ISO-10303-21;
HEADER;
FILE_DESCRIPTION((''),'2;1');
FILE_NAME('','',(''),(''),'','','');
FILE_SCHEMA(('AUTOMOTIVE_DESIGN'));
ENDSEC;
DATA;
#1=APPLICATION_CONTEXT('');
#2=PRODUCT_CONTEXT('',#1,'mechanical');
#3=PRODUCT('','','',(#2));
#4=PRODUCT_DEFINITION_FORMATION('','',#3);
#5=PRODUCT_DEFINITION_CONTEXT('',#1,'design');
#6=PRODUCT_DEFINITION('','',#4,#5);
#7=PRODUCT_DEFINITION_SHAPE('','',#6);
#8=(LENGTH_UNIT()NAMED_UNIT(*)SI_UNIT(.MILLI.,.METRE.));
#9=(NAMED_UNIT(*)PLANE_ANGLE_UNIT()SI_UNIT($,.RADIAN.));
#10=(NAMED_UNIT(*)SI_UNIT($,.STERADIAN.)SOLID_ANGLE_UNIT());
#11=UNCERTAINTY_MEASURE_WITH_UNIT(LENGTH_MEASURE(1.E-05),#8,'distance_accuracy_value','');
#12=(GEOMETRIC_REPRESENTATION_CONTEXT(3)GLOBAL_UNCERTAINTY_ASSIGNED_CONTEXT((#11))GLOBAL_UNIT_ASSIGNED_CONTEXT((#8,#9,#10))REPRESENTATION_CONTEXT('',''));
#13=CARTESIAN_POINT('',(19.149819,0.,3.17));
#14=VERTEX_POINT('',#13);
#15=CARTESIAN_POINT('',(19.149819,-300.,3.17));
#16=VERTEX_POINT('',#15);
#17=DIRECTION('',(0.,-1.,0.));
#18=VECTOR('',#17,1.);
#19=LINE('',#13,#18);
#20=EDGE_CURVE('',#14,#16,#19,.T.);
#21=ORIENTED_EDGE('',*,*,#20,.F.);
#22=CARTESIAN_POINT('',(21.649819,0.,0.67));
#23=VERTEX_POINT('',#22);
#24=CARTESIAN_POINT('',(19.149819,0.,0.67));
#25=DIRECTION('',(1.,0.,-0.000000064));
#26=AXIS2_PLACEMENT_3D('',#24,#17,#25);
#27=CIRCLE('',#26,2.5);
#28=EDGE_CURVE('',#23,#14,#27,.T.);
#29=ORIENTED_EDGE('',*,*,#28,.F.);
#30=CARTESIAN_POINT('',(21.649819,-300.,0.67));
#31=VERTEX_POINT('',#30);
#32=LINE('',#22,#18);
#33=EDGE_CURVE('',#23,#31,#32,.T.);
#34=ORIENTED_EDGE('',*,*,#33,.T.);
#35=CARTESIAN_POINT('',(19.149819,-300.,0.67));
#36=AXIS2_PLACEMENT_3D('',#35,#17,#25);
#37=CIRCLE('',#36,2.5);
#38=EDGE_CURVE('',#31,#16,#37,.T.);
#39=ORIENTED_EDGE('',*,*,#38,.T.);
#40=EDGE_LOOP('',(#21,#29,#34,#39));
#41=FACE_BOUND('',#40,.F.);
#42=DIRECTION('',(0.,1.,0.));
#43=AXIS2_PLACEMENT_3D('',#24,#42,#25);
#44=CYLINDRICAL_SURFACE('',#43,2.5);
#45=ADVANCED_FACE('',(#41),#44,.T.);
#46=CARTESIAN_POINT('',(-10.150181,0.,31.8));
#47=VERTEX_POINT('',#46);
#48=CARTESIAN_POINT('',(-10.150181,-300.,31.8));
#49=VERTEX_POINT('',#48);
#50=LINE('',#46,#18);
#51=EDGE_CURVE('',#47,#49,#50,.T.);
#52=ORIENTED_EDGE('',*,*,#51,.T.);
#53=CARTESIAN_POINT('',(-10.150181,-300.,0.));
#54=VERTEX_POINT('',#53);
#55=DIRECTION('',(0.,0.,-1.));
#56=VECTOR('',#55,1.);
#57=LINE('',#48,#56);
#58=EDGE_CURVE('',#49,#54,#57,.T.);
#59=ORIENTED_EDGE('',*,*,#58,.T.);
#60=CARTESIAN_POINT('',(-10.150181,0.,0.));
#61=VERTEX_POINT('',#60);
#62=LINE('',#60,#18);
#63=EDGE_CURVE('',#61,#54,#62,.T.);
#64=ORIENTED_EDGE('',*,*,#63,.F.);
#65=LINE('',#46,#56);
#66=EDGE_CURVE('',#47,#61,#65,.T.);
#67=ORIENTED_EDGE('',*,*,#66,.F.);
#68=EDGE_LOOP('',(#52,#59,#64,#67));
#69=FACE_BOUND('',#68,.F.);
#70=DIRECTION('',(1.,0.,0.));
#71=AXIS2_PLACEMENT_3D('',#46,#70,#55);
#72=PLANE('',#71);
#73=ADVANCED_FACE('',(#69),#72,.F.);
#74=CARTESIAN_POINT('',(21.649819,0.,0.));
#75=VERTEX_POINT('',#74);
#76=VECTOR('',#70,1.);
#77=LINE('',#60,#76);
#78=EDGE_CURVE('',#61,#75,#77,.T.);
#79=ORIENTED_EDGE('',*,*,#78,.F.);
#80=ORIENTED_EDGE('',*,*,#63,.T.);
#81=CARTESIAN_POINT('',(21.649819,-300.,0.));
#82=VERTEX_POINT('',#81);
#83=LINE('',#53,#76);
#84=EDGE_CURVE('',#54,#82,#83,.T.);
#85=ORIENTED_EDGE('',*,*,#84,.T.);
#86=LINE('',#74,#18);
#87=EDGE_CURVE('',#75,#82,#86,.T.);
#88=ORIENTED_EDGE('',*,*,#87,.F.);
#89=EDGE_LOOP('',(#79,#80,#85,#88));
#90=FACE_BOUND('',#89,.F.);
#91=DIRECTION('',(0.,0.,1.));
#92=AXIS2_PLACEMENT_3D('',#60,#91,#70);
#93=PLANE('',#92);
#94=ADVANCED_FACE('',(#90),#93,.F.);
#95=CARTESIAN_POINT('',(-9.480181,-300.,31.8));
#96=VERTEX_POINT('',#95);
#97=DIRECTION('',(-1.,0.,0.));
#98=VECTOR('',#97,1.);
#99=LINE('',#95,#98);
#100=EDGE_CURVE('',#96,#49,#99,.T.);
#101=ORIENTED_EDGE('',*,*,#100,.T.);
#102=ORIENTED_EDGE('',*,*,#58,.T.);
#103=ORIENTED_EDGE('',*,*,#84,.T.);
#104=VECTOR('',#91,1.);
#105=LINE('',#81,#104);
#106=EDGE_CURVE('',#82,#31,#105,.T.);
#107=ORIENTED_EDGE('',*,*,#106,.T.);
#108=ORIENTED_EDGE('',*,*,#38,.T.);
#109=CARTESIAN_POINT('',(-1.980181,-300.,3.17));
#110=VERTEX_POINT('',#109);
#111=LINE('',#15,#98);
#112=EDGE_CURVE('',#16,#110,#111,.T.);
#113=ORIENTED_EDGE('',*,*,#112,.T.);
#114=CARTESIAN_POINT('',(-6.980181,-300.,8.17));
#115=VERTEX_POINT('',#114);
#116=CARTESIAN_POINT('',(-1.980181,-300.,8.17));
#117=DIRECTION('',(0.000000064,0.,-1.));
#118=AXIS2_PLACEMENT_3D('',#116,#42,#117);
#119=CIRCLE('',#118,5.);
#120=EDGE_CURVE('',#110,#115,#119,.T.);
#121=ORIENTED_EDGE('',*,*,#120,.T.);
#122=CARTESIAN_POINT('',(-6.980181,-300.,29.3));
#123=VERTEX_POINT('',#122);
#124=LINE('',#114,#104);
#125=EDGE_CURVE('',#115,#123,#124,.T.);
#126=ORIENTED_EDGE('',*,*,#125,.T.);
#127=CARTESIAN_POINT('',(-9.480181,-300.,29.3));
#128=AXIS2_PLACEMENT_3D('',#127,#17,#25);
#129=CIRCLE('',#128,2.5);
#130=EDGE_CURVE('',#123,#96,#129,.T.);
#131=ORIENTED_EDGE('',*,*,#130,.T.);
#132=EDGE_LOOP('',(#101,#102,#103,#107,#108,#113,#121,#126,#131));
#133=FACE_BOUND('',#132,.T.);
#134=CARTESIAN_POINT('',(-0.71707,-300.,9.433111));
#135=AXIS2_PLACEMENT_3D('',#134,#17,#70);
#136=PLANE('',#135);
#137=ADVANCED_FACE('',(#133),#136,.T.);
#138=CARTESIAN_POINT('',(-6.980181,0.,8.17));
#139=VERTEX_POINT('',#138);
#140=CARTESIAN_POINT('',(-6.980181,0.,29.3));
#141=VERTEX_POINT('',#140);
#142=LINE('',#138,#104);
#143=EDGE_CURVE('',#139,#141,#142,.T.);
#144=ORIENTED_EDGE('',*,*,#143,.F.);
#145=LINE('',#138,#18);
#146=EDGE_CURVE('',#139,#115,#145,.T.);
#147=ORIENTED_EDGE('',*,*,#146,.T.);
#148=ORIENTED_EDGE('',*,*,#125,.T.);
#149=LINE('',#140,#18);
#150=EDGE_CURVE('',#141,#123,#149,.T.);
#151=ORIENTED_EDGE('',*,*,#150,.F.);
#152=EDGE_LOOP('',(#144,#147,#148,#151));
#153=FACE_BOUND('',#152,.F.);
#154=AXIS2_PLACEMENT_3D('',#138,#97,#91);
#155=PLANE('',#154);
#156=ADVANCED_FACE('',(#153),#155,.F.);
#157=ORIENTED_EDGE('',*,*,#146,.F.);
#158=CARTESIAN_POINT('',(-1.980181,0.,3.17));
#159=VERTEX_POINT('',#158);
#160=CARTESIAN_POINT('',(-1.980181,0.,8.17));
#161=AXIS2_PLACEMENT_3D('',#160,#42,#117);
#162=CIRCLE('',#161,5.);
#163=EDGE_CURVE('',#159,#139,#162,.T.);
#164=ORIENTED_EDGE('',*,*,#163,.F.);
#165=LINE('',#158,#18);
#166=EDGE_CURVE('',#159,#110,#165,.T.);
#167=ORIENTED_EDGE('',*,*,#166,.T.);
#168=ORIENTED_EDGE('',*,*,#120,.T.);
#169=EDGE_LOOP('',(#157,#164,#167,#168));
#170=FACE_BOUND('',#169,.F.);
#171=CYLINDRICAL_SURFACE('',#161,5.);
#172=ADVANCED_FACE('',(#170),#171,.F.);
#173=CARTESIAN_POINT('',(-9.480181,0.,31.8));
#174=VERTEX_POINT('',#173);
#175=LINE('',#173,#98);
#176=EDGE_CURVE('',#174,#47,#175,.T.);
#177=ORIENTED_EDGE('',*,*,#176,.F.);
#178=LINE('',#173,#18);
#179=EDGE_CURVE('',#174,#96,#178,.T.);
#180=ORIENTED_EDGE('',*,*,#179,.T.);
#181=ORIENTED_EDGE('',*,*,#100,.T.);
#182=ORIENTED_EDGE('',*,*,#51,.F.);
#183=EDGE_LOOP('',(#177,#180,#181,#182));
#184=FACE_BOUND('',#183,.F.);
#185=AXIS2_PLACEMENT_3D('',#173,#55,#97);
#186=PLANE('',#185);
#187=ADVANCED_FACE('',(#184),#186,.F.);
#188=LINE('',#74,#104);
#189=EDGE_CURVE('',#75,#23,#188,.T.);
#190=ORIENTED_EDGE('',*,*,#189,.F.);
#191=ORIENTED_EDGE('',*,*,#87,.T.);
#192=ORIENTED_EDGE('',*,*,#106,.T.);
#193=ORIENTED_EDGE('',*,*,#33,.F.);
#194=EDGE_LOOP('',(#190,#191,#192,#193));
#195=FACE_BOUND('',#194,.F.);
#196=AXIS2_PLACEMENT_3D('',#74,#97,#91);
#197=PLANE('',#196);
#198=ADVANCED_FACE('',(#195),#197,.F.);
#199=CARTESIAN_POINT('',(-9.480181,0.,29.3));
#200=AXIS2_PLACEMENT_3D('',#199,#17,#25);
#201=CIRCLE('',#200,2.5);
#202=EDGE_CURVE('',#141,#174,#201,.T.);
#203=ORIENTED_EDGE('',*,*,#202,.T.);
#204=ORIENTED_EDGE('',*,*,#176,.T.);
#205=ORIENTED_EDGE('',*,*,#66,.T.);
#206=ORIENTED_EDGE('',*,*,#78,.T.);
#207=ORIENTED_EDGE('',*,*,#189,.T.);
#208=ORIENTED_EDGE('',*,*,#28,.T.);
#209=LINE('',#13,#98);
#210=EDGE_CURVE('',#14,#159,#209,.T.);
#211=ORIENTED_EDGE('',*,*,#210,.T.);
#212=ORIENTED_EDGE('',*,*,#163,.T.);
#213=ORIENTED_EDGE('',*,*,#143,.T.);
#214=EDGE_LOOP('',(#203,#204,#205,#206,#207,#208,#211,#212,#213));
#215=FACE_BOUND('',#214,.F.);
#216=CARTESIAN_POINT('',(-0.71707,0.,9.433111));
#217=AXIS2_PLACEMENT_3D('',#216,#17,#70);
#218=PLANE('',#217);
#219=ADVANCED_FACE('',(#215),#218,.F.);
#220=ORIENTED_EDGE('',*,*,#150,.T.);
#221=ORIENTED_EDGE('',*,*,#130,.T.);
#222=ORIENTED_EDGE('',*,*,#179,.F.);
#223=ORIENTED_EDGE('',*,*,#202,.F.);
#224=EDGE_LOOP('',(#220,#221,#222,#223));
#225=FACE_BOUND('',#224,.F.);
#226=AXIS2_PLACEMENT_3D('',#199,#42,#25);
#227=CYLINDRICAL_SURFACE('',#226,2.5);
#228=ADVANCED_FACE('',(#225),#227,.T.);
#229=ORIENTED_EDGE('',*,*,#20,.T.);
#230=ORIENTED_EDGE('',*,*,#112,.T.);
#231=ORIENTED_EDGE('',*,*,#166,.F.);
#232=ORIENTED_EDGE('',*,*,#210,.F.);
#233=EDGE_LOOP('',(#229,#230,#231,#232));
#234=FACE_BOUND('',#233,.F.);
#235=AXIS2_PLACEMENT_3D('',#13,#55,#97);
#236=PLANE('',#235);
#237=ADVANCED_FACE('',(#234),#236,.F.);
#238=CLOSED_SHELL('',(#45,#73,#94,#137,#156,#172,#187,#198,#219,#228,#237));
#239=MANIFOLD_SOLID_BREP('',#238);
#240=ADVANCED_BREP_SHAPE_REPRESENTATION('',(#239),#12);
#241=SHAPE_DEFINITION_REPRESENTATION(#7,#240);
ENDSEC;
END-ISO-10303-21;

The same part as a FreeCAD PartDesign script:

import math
import FreeCAD as App
import Part
import Sketcher

doc = App.newDocument("Part")
params = doc.addObject("Spreadsheet::Sheet", "Params")
for row, (alias, value) in enumerate([
    ("sketch1_radius", "5 mm"),
    ("sketch1_radius2", "2.5 mm"),
    ("sketch1_width", "31.8 mm"),
    ("sketch1_width2", "0.67 mm"),
    ("pad1_length", "300 mm"),
], start=1):
    params.set(f"A{row}", alias)
    params.set(f"B{row}", "=" + value)
    params.setAlias(f"B{row}", alias)

body = doc.addObject("PartDesign::Body", "Body")

# Sketch on XZ plane
sketch1 = body.newObject("Sketcher::SketchObject", "Sketch")
sketch1.AttachmentSupport = (doc.getObject("XZ_Plane"), [""])
sketch1.MapMode = "FlatFace"
sketch1.addGeometry([
    Part.LineSegment(App.Vector(-9.5, 31.8, 0), App.Vector(-10.2, 31.8, 0)),  # 0
    Part.LineSegment(App.Vector(-10.2, 31.8, 0), App.Vector(-10.2, 0, 0)),  # 1
    Part.LineSegment(App.Vector(-10.2, 0, 0), App.Vector(21.6, 0, 0)),  # 2
    Part.LineSegment(App.Vector(21.6, 0, 0), App.Vector(21.6, 0.7, 0)),  # 3
    Part.ArcOfCircle(Part.Circle(App.Vector(19.1, 0.7, 0), App.Vector(0, 0, 1), 2.5), math.radians(0), math.radians(90)),  # 4
    Part.LineSegment(App.Vector(19.1, 3.2, 0), App.Vector(-2, 3.2, 0)),  # 5
    Part.ArcOfCircle(Part.Circle(App.Vector(-2, 8.2, 0), App.Vector(0, 0, 1), 5), math.radians(180), math.radians(270)),  # 6
    Part.LineSegment(App.Vector(-7, 8.2, 0), App.Vector(-7, 29.3, 0)),  # 7
    Part.ArcOfCircle(Part.Circle(App.Vector(-9.5, 29.3, 0), App.Vector(0, 0, 1), 2.5), math.radians(0), math.radians(90)),  # 8
], False)
sketch1.addConstraint([
    Sketcher.Constraint("Coincident", 0, 2, 1, 1),
    Sketcher.Constraint("Coincident", 1, 2, 2, 1),
    Sketcher.Constraint("Coincident", 2, 2, 3, 1),
    Sketcher.Constraint("Tangent", 3, 2, 4, 1),
    Sketcher.Constraint("Tangent", 4, 2, 5, 1),
    Sketcher.Constraint("Tangent", 5, 2, 6, 2),
    Sketcher.Constraint("Tangent", 6, 1, 7, 1),
    Sketcher.Constraint("Tangent", 7, 2, 8, 1),
    Sketcher.Constraint("Tangent", 8, 2, 0, 1),
    Sketcher.Constraint("Horizontal", 0),
    Sketcher.Constraint("Vertical", 1),
    Sketcher.Constraint("Horizontal", 2),
    Sketcher.Constraint("Vertical", 3),
    Sketcher.Constraint("Horizontal", 5),
    Sketcher.Constraint("Vertical", 7),
    Sketcher.Constraint("Equal", 4, 8),
    Sketcher.Constraint("PointOnObject", 1, 2, -1),
    Sketcher.Constraint("Equal", 2, 1),
    Sketcher.Constraint("Equal", 0, 3),
    Sketcher.Constraint("Radius", 6, 5.0),
    Sketcher.Constraint("Radius", 4, 2.5),
    Sketcher.Constraint("DistanceX", 2, 1, 2, 2, 31.8),
    Sketcher.Constraint("DistanceX", 0, 2, 0, 1, 0.67),
    Sketcher.Constraint("DistanceX", -1, 1, 4, 3, 19.149819),
])
sketch1.setExpression("Constraints[19]", "Params.sketch1_radius")
sketch1.setExpression("Constraints[20]", "Params.sketch1_radius2")
sketch1.setExpression("Constraints[21]", "Params.sketch1_width")
sketch1.setExpression("Constraints[22]", "Params.sketch1_width2")
pad1 = body.newObject("PartDesign::Pad", "Pad")
pad1.Profile = sketch1
pad1.setExpression("Length", "Params.pad1_length")

doc.recompute()
